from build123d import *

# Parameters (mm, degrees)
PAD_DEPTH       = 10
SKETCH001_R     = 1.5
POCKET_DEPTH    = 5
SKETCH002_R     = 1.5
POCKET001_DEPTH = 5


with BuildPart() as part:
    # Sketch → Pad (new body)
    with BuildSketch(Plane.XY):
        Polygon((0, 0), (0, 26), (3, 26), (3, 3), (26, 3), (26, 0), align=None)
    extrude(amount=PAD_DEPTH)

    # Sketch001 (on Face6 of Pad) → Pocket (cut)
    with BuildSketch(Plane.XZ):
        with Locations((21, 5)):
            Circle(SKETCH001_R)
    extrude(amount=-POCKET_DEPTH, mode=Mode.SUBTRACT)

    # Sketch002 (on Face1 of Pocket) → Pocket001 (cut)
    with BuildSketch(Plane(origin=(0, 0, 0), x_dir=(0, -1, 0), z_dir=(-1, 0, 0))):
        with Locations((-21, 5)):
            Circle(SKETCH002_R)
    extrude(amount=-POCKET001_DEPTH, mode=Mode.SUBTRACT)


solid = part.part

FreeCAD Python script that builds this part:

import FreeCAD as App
import Part
import Sketcher
from FreeCAD import Vector


def add_polygon(sketch, points):
    """Adds a closed chain of lines whose ends are joined by coincident constraints."""
    first, n = sketch.GeometryCount, len(points)
    for a, b in zip(points, points[1:] + points[:1]):
        sketch.addGeometry(Part.LineSegment(App.Vector(*a, 0), App.Vector(*b, 0)), False)
    for i in range(n):
        sketch.addConstraint(Sketcher.Constraint("Coincident", first + i, 2, first + (i + 1) % n, 1))

doc = App.newDocument("Part")
body = doc.addObject("PartDesign::Body", "Body")

# Sketch on XY plane
sketch1 = body.newObject("Sketcher::SketchObject", "Sketch")
sketch1.AttachmentSupport = (doc.getObject("XY_Plane"), [""])
sketch1.MapMode = "FlatFace"
add_polygon(sketch1, [(0, 26), (0, 0), (26, 0), (26, 3), (3, 3), (3, 26)])  # lines 0-5
sketch1.addConstraint(Sketcher.Constraint("Vertical", 0))
sketch1.addConstraint(Sketcher.Constraint("Horizontal", 1))
sketch1.addConstraint(Sketcher.Constraint("Vertical", 2))
sketch1.addConstraint(Sketcher.Constraint("Horizontal", 3))
sketch1.addConstraint(Sketcher.Constraint("Vertical", 4))
sketch1.addConstraint(Sketcher.Constraint("Horizontal", 5))
sketch1.addConstraint(Sketcher.Constraint("Coincident", 0, 2, -1, 1))
sketch1.addConstraint(Sketcher.Constraint("Equal", 1, 0))
sketch1.addConstraint(Sketcher.Constraint("Equal", 5, 2))
sketch1.addConstraint(Sketcher.Constraint("DistanceX", 1, 1, 1, 2, 26.0))
sketch1.addConstraint(Sketcher.Constraint("DistanceX", 3, 2, 3, 1, 23.0))
pad1 = body.newObject("PartDesign::Pad", "Pad")
pad1.Profile = sketch1
pad1.Length = 10

# Sketch on XZ plane
sketch2 = body.newObject("Sketcher::SketchObject", "Sketch001")
sketch2.AttachmentSupport = (doc.getObject("XZ_Plane"), [""])
sketch2.MapMode = "FlatFace"
sketch2.addGeometry(Part.Circle(Vector(21, 5, 0), Vector(0, 0, 1), 1.5), False)
sketch2.addConstraint(Sketcher.Constraint("Diameter", 0, 3.0))
sketch2.addConstraint(Sketcher.Constraint("DistanceX", -1, 1, 0, 3, 21.0))
sketch2.addConstraint(Sketcher.Constraint("DistanceY", -1, 1, 0, 3, 5.0))
pocket1 = body.newObject("PartDesign::Pocket", "Pocket")
pocket1.Profile = sketch2
pocket1.Length = 5

# Sketch on YZ plane
sketch3 = body.newObject("Sketcher::SketchObject", "Sketch002")
sketch3.AttachmentSupport = (doc.getObject("YZ_Plane"), [""])
sketch3.MapMode = "FlatFace"
sketch3.addGeometry(Part.Circle(Vector(21, 5, 0), Vector(0, 0, 1), 1.5), False)
sketch3.addConstraint(Sketcher.Constraint("Diameter", 0, 3.0))
sketch3.addConstraint(Sketcher.Constraint("DistanceX", -1, 1, 0, 3, 21.0))
sketch3.addConstraint(Sketcher.Constraint("DistanceY", -1, 1, 0, 3, 5.0))
pocket2 = body.newObject("PartDesign::Pocket", "Pocket001")
pocket2.Profile = sketch3
pocket2.Length = 5
pocket2.Reversed = True

doc.recompute()
